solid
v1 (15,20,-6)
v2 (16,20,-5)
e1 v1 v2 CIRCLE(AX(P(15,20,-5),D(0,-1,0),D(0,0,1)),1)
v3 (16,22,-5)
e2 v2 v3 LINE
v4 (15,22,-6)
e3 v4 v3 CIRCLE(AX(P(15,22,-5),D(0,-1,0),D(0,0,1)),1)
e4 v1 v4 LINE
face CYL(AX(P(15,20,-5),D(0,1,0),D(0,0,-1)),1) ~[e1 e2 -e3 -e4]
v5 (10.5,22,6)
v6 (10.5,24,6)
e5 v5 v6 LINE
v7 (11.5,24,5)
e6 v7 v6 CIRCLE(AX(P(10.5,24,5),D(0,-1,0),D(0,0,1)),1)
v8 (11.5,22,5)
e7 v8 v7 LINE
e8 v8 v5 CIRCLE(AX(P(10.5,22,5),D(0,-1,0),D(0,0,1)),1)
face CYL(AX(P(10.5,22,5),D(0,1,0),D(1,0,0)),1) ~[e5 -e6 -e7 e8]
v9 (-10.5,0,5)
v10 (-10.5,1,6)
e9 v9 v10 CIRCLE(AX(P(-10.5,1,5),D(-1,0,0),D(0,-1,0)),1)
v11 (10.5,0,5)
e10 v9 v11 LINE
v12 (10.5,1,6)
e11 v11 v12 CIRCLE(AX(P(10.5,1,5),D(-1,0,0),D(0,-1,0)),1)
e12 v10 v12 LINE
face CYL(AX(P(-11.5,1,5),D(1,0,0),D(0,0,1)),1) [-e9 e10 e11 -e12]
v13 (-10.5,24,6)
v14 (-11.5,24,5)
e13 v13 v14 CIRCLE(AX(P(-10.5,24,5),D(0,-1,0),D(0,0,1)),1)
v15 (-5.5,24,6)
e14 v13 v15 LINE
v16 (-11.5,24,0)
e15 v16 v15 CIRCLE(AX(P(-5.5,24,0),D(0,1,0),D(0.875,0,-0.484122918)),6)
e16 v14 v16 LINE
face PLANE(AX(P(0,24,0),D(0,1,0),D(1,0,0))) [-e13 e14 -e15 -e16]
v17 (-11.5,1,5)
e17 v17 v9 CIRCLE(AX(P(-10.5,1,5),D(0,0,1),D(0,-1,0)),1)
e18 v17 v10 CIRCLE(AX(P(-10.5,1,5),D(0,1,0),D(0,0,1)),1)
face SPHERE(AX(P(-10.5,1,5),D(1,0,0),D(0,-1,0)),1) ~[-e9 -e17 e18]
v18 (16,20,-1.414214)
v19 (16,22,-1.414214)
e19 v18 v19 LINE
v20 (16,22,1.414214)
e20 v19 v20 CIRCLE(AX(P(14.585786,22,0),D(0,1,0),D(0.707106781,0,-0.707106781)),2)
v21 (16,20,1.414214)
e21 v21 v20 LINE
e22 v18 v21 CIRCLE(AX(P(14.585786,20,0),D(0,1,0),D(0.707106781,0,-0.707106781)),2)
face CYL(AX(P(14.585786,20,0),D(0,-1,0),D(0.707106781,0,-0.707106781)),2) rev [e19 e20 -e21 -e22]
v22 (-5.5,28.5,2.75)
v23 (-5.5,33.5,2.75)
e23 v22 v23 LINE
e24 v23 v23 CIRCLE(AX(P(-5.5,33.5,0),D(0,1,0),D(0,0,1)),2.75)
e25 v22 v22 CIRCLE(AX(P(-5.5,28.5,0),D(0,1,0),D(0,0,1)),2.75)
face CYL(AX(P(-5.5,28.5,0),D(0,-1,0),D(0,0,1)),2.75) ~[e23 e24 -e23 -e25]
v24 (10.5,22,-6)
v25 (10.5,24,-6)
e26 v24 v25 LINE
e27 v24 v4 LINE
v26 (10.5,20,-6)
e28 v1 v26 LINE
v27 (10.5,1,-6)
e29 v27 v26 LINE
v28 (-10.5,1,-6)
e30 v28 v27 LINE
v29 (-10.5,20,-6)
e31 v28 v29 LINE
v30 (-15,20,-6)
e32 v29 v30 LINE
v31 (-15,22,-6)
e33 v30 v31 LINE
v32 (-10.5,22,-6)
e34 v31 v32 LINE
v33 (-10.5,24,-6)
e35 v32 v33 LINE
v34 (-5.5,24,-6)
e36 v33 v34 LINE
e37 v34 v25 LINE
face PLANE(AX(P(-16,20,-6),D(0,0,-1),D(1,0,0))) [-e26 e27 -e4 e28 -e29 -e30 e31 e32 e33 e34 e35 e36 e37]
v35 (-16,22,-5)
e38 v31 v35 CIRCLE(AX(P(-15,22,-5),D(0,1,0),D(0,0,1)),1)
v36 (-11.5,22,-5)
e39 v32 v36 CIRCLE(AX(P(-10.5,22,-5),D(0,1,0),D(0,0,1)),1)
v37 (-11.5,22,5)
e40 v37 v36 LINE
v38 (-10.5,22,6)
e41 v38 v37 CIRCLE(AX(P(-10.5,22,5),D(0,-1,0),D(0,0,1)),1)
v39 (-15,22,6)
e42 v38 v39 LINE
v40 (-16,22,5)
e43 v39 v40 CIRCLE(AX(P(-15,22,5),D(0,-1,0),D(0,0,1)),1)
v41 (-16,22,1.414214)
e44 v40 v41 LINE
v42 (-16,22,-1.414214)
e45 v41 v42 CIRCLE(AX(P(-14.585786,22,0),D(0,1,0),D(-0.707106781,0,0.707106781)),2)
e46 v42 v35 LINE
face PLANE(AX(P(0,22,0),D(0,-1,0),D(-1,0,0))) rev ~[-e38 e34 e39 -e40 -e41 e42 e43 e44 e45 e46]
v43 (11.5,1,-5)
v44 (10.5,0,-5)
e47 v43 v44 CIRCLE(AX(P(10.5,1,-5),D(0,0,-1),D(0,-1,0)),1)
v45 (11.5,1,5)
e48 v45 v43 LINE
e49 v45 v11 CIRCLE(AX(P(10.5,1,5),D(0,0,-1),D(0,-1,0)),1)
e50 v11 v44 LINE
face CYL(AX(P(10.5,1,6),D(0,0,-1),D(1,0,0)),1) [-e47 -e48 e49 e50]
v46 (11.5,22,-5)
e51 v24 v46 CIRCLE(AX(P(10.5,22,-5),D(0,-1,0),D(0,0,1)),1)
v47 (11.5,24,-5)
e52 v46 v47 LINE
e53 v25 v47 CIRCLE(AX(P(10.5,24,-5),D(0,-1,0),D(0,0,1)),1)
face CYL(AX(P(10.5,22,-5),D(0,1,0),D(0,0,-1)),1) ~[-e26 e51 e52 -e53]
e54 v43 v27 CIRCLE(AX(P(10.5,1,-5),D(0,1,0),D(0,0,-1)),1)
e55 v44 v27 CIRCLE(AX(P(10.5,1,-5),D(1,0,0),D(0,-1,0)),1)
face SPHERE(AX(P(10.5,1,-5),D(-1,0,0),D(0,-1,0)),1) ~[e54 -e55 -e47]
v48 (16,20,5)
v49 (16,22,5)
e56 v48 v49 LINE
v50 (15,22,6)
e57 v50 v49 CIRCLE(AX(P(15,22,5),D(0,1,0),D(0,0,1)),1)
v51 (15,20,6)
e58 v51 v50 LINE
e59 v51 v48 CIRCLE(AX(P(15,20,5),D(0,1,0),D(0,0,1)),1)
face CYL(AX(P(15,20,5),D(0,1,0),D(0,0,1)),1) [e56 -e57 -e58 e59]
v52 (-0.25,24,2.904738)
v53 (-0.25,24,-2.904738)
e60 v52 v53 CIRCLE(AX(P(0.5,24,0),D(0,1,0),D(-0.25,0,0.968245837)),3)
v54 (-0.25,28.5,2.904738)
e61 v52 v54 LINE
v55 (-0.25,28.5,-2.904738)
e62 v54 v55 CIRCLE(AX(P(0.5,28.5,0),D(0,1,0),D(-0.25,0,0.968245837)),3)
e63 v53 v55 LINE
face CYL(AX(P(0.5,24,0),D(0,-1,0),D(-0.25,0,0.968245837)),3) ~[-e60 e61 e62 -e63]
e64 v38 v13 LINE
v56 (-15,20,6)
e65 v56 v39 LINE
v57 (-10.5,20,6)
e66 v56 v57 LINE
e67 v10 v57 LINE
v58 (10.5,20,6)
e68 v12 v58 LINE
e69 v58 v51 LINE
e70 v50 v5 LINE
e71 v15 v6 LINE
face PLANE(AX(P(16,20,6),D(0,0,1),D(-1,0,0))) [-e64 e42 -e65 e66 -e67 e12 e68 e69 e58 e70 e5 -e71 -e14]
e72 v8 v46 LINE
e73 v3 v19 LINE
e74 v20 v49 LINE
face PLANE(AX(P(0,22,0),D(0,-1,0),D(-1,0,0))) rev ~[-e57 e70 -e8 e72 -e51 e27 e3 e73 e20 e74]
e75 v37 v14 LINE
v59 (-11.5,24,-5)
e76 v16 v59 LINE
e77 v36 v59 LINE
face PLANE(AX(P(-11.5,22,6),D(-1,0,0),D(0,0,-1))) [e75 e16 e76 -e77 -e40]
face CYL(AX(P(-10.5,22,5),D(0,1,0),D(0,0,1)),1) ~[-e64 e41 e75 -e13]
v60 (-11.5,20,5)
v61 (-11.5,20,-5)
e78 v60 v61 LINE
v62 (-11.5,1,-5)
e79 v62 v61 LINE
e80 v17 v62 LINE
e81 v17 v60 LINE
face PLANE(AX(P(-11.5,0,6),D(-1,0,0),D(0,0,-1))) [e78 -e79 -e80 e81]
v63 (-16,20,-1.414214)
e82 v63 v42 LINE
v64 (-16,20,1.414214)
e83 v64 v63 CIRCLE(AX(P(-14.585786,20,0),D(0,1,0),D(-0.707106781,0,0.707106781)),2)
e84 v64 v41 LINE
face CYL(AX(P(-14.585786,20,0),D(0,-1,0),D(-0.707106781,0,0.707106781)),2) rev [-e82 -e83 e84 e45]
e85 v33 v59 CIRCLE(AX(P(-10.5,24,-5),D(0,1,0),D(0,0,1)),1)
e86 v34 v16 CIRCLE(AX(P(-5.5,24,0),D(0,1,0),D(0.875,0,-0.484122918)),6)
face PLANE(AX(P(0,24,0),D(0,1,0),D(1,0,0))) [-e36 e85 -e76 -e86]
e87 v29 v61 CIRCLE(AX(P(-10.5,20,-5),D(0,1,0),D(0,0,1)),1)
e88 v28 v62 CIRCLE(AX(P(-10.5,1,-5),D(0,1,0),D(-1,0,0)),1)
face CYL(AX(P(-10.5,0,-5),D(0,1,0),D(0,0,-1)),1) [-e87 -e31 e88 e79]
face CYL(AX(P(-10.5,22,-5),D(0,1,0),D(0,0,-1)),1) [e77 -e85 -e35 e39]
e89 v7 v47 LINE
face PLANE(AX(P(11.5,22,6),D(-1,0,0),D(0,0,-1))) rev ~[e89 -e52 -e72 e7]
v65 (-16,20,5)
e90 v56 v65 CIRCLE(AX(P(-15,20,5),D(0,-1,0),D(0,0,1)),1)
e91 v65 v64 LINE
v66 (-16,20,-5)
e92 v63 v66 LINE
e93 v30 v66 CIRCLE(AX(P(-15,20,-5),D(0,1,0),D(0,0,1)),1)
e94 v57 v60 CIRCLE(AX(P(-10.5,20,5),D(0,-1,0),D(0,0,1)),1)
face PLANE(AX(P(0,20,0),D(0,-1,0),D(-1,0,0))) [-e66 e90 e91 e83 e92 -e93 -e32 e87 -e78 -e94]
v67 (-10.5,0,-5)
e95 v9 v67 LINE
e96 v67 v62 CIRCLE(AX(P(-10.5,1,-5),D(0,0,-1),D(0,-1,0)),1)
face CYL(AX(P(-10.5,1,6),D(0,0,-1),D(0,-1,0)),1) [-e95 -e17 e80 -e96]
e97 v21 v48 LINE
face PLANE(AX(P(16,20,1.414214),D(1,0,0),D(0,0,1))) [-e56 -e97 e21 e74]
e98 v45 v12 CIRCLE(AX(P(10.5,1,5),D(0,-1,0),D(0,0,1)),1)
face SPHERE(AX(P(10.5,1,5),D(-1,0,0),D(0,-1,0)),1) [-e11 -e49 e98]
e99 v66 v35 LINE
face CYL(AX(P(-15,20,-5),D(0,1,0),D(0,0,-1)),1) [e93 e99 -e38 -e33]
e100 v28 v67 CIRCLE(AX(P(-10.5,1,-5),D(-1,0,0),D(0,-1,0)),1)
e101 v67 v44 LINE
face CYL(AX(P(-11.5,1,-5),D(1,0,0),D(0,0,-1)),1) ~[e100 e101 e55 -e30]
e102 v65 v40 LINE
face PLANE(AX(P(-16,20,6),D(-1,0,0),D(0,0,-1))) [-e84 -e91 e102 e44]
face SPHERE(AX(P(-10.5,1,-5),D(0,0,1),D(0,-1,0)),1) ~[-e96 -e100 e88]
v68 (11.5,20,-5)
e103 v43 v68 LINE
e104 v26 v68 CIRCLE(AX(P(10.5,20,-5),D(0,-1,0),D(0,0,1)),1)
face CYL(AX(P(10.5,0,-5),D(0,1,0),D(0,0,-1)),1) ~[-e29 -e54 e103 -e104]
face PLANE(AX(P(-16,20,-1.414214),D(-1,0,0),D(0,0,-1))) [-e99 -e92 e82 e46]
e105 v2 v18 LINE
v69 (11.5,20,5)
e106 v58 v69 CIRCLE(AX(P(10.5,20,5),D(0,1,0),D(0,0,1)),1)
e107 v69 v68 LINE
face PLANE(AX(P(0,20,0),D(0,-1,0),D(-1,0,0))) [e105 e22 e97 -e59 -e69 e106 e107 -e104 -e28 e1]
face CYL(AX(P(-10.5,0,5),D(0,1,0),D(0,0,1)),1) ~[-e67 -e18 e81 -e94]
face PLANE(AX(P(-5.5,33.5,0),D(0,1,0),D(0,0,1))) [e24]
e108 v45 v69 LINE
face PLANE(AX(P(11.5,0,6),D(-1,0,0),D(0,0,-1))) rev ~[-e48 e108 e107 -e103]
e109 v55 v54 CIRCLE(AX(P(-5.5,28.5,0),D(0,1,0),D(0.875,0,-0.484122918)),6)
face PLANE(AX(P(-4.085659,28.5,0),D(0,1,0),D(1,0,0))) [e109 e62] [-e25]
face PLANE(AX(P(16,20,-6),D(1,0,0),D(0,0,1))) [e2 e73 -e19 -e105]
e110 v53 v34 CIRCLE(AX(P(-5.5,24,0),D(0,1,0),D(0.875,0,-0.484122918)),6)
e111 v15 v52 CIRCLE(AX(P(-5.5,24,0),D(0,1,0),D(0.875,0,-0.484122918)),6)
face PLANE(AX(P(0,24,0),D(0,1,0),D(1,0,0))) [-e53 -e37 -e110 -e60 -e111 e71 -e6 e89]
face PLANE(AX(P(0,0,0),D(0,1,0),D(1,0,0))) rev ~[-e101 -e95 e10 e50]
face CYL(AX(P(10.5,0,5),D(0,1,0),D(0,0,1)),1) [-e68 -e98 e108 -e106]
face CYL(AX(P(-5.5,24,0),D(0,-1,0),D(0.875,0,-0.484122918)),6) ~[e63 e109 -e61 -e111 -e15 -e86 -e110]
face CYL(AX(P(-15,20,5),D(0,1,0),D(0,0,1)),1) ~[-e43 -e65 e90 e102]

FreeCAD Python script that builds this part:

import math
import FreeCAD as App
import Part
import Sketcher
from FreeCAD import Vector
Q = App.Units.Quantity


def edges_at(feature, points):
    """Names of the edges that pass closest to the given points."""
    edges = feature.Shape.Edges
    near = lambda p: min(range(len(edges)), key=lambda i: edges[i].distToShape(Part.Vertex(*p))[0])
    return sorted({f"Edge{near(p) + 1}" for p in points})


def add_polygon(sketch, points):
    """Adds a closed chain of lines whose ends are joined by coincident constraints."""
    first, n = sketch.GeometryCount, len(points)
    for a, b in zip(points, points[1:] + points[:1]):
        sketch.addGeometry(Part.LineSegment(App.Vector(*a, 0), App.Vector(*b, 0)), False)
    for i in range(n):
        sketch.addConstraint(Sketcher.Constraint("Coincident", first + i, 2, first + (i + 1) % n, 1))

doc = App.newDocument("Part")
body = doc.addObject("PartDesign::Body", "Body")

sketch1 = body.newObject("Sketcher::SketchObject", "Sketch")
sketch1.AttachmentSupport = (doc.getObject("XZ_Plane"), [""])
sketch1.MapMode = "FlatFace"
add_polygon(sketch1, [(-12, -6), (-12, 6), (12, 6), (12, -6)])
sketch1.addConstraint(Sketcher.Constraint("Vertical", 0))
sketch1.addConstraint(Sketcher.Constraint("Horizontal", 1))
sketch1.addConstraint(Sketcher.Constraint("Vertical", 2))
sketch1.addConstraint(Sketcher.Constraint("Horizontal", 3))
sketch1.addConstraint(Sketcher.Constraint("Symmetric", 0, 2, 2, 2, -1, 1))
sketch1.addConstraint(Sketcher.Constraint("DistanceX", 1, 1, 1, 2, Q("23 mm")))
sketch1.addConstraint(Sketcher.Constraint("DistanceY", 0, 1, 0, 2, Q("12 mm")))
pad1 = body.newObject("PartDesign::Pad", "Pad")
pad1.Profile = sketch1
pad1.Length = 20
pad1.Reversed = True

sketch2 = body.newObject("Sketcher::SketchObject", "Sketch001")
sketch2.AttachmentSupport = (doc.getObject("XZ_Plane"), [""])
sketch2.MapMode = "FlatFace"
sketch2.AttachmentOffset = App.Placement(Vector(0, 0, -20), App.Rotation())
sketch2.addGeometry(Part.LineSegment(Vector(16, -6, 0), Vector(-16, -6, 0)), False)
sketch2.addGeometry(Part.LineSegment(Vector(-16, -6, 0), Vector(-16, -1.4, 0)), False)
sketch2.addGeometry(Part.ArcOfCircle(Part.Circle(Vector(-14.6, 0, 0), Vector(0, 0, 1), 2), math.radians(-135), math.radians(135)), False)
sketch2.addGeometry(Part.LineSegment(Vector(-16, 1.4, 0), Vector(-16, 6, 0)), False)
sketch2.addGeometry(Part.LineSegment(Vector(-16, 6, 0), Vector(16, 6, 0)), False)
sketch2.addGeometry(Part.LineSegment(Vector(16, 6, 0), Vector(16, 1.4, 0)), False)
sketch2.addGeometry(Part.ArcOfCircle(Part.Circle(Vector(14.6, 0, 0), Vector(0, 0, 1), 2), math.radians(45), math.radians(315)), False)
sketch2.addGeometry(Part.LineSegment(Vector(16, -1.4, 0), Vector(16, -6, 0)), False)
sketch2.addConstraint(Sketcher.Constraint("Coincident", 0, 2, 1, 1))
sketch2.addConstraint(Sketcher.Constraint("Coincident", 1, 2, 2, 1))
sketch2.addConstraint(Sketcher.Constraint("Coincident", 2, 2, 3, 1))
sketch2.addConstraint(Sketcher.Constraint("Coincident", 3, 2, 4, 1))
sketch2.addConstraint(Sketcher.Constraint("Coincident", 4, 2, 5, 1))
sketch2.addConstraint(Sketcher.Constraint("Coincident", 5, 2, 6, 1))
sketch2.addConstraint(Sketcher.Constraint("Coincident", 6, 2, 7, 1))
sketch2.addConstraint(Sketcher.Constraint("Coincident", 7, 2, 0, 1))
sketch2.addConstraint(Sketcher.Constraint("Horizontal", 0))
sketch2.addConstraint(Sketcher.Constraint("Vertical", 1))
sketch2.addConstraint(Sketcher.Constraint("Vertical", 3))
sketch2.addConstraint(Sketcher.Constraint("Horizontal", 4))
sketch2.addConstraint(Sketcher.Constraint("Vertical", 5))
sketch2.addConstraint(Sketcher.Constraint("Vertical", 7))
sketch2.addConstraint(Sketcher.Constraint("Equal", 2, 6))
sketch2.addConstraint(Sketcher.Constraint("Symmetric", 2, 3, 6, 3, -1, 1))
sketch2.addConstraint(Sketcher.Constraint("Symmetric", 0, 2, 4, 2, -1, 1))
sketch2.addConstraint(Sketcher.Constraint("Symmetric", 2, 2, 5, 2, -2))
sketch2.addConstraint(Sketcher.Constraint("Horizontal", 1, 2, 6, 2))
sketch2.addConstraint(Sketcher.Constraint("Radius", 2, Q("2 mm")))
sketch2.addConstraint(Sketcher.Constraint("DistanceX", 0, 2, 0, 1, Q("32 mm")))
sketch2.addConstraint(Sketcher.Constraint("DistanceY", 0, 2, -1, 1, Q("6 mm")))
sketch2.addConstraint(Sketcher.Constraint("DistanceY", 1, 1, 1, 2, Q("4.585786 mm")))
pad2 = body.newObject("PartDesign::Pad", "Pad001")
pad2.Profile = sketch2
pad2.Length = 2
pad2.Reversed = True

sketch3 = body.newObject("Sketcher::SketchObject", "Sketch002")
sketch3.AttachmentSupport = (doc.getObject("XZ_Plane"), [""])
sketch3.MapMode = "FlatFace"
sketch3.AttachmentOffset = App.Placement(Vector(0, 0, -22), App.Rotation())
add_polygon(sketch3, [(-12, -6), (-12, 6), (12, 6), (12, -6)])
sketch3.addConstraint(Sketcher.Constraint("Vertical", 0))
sketch3.addConstraint(Sketcher.Constraint("Horizontal", 1))
sketch3.addConstraint(Sketcher.Constraint("Vertical", 2))
sketch3.addConstraint(Sketcher.Constraint("Horizontal", 3))
sketch3.addConstraint(Sketcher.Constraint("Symmetric", 0, 2, 2, 2, -1, 1))
sketch3.addConstraint(Sketcher.Constraint("DistanceX", 1, 1, 1, 2, Q("23 mm")))
sketch3.addConstraint(Sketcher.Constraint("DistanceY", 0, 1, 0, 2, Q("12 mm")))
pad3 = body.newObject("PartDesign::Pad", "Pad002")
pad3.Profile = sketch3
pad3.Length = 2
pad3.Reversed = True

sketch4 = body.newObject("Sketcher::SketchObject", "Sketch003")
sketch4.AttachmentSupport = (doc.getObject("XZ_Plane"), [""])
sketch4.MapMode = "FlatFace"
sketch4.AttachmentOffset = App.Placement(Vector(0, 0, -24), App.Rotation())
sketch4.addGeometry(Part.ArcOfCircle(Part.Circle(Vector(-5.5, 0, 0), Vector(0, 0, 1), 6), math.radians(29), math.radians(331)), False)
sketch4.addGeometry(Part.ArcOfCircle(Part.Circle(Vector(0.5, 0, 0), Vector(0, 0, 1), 3), math.radians(-104), math.radians(104)), False)
sketch4.addConstraint(Sketcher.Constraint("Coincident", 0, 1, 1, 2))
sketch4.addConstraint(Sketcher.Constraint("Coincident", 1, 1, 0, 2))
sketch4.addConstraint(Sketcher.Constraint("Symmetric", 0, 1, 1, 1, -1))
sketch4.addConstraint(Sketcher.Constraint("Radius", 0, Q("6 mm")))
sketch4.addConstraint(Sketcher.Constraint("Radius", 1, Q("3 mm")))
sketch4.addConstraint(Sketcher.Constraint("DistanceX", 0, 3, 1, 3, Q("6 mm")))
sketch4.addConstraint(Sketcher.Constraint("DistanceX", 0, 3, -1, 1, Q("5.5 mm")))
pad4 = body.newObject("PartDesign::Pad", "Pad003")
pad4.Profile = sketch4
pad4.Length = 4.5
pad4.Reversed = True

sketch5 = body.newObject("Sketcher::SketchObject", "Sketch004")
sketch5.AttachmentSupport = (doc.getObject("XZ_Plane"), [""])
sketch5.MapMode = "FlatFace"
sketch5.AttachmentOffset = App.Placement(Vector(0, 0, -28.5), App.Rotation())
sketch5.addGeometry(Part.Circle(Vector(-5.5, 0, 0), Vector(0, 0, 1), 2.8), False)
sketch5.addConstraint(Sketcher.Constraint("PointOnObject", 0, 3, -1))
sketch5.addConstraint(Sketcher.Constraint("Diameter", 0, Q("5.5 mm")))
sketch5.addConstraint(Sketcher.Constraint("DistanceX", 0, 3, -1, 1, Q("5.5 mm")))
pad5 = body.newObject("PartDesign::Pad", "Pad004")
pad5.Profile = sketch5
pad5.Length = 5
pad5.Reversed = True
doc.recompute()

fillet = body.newObject("PartDesign::Fillet", "Fillet")
fillet.Base = (pad5, edges_at(pad5, [
    (16, 21, 6),
    (16, 21, -6),
    (-16, 21, -6),
    (-16, 21, 6),
    (11.5, 23, 6),
    (11.5, 23, -6),
    (-11.5, 23, -6),
    (-11.5, 23, 6),
    (0, 0, 6),
    (-11.5, 0, 0),
    (0, 0, -6),
    (11.5, 0, 0),
    (11.5, 10, 6),
    (-11.5, 10, 6),
    (-11.5, 10, -6),
    (11.5, 10, -6),
]))
fillet.Radius = 1

doc.recompute()
